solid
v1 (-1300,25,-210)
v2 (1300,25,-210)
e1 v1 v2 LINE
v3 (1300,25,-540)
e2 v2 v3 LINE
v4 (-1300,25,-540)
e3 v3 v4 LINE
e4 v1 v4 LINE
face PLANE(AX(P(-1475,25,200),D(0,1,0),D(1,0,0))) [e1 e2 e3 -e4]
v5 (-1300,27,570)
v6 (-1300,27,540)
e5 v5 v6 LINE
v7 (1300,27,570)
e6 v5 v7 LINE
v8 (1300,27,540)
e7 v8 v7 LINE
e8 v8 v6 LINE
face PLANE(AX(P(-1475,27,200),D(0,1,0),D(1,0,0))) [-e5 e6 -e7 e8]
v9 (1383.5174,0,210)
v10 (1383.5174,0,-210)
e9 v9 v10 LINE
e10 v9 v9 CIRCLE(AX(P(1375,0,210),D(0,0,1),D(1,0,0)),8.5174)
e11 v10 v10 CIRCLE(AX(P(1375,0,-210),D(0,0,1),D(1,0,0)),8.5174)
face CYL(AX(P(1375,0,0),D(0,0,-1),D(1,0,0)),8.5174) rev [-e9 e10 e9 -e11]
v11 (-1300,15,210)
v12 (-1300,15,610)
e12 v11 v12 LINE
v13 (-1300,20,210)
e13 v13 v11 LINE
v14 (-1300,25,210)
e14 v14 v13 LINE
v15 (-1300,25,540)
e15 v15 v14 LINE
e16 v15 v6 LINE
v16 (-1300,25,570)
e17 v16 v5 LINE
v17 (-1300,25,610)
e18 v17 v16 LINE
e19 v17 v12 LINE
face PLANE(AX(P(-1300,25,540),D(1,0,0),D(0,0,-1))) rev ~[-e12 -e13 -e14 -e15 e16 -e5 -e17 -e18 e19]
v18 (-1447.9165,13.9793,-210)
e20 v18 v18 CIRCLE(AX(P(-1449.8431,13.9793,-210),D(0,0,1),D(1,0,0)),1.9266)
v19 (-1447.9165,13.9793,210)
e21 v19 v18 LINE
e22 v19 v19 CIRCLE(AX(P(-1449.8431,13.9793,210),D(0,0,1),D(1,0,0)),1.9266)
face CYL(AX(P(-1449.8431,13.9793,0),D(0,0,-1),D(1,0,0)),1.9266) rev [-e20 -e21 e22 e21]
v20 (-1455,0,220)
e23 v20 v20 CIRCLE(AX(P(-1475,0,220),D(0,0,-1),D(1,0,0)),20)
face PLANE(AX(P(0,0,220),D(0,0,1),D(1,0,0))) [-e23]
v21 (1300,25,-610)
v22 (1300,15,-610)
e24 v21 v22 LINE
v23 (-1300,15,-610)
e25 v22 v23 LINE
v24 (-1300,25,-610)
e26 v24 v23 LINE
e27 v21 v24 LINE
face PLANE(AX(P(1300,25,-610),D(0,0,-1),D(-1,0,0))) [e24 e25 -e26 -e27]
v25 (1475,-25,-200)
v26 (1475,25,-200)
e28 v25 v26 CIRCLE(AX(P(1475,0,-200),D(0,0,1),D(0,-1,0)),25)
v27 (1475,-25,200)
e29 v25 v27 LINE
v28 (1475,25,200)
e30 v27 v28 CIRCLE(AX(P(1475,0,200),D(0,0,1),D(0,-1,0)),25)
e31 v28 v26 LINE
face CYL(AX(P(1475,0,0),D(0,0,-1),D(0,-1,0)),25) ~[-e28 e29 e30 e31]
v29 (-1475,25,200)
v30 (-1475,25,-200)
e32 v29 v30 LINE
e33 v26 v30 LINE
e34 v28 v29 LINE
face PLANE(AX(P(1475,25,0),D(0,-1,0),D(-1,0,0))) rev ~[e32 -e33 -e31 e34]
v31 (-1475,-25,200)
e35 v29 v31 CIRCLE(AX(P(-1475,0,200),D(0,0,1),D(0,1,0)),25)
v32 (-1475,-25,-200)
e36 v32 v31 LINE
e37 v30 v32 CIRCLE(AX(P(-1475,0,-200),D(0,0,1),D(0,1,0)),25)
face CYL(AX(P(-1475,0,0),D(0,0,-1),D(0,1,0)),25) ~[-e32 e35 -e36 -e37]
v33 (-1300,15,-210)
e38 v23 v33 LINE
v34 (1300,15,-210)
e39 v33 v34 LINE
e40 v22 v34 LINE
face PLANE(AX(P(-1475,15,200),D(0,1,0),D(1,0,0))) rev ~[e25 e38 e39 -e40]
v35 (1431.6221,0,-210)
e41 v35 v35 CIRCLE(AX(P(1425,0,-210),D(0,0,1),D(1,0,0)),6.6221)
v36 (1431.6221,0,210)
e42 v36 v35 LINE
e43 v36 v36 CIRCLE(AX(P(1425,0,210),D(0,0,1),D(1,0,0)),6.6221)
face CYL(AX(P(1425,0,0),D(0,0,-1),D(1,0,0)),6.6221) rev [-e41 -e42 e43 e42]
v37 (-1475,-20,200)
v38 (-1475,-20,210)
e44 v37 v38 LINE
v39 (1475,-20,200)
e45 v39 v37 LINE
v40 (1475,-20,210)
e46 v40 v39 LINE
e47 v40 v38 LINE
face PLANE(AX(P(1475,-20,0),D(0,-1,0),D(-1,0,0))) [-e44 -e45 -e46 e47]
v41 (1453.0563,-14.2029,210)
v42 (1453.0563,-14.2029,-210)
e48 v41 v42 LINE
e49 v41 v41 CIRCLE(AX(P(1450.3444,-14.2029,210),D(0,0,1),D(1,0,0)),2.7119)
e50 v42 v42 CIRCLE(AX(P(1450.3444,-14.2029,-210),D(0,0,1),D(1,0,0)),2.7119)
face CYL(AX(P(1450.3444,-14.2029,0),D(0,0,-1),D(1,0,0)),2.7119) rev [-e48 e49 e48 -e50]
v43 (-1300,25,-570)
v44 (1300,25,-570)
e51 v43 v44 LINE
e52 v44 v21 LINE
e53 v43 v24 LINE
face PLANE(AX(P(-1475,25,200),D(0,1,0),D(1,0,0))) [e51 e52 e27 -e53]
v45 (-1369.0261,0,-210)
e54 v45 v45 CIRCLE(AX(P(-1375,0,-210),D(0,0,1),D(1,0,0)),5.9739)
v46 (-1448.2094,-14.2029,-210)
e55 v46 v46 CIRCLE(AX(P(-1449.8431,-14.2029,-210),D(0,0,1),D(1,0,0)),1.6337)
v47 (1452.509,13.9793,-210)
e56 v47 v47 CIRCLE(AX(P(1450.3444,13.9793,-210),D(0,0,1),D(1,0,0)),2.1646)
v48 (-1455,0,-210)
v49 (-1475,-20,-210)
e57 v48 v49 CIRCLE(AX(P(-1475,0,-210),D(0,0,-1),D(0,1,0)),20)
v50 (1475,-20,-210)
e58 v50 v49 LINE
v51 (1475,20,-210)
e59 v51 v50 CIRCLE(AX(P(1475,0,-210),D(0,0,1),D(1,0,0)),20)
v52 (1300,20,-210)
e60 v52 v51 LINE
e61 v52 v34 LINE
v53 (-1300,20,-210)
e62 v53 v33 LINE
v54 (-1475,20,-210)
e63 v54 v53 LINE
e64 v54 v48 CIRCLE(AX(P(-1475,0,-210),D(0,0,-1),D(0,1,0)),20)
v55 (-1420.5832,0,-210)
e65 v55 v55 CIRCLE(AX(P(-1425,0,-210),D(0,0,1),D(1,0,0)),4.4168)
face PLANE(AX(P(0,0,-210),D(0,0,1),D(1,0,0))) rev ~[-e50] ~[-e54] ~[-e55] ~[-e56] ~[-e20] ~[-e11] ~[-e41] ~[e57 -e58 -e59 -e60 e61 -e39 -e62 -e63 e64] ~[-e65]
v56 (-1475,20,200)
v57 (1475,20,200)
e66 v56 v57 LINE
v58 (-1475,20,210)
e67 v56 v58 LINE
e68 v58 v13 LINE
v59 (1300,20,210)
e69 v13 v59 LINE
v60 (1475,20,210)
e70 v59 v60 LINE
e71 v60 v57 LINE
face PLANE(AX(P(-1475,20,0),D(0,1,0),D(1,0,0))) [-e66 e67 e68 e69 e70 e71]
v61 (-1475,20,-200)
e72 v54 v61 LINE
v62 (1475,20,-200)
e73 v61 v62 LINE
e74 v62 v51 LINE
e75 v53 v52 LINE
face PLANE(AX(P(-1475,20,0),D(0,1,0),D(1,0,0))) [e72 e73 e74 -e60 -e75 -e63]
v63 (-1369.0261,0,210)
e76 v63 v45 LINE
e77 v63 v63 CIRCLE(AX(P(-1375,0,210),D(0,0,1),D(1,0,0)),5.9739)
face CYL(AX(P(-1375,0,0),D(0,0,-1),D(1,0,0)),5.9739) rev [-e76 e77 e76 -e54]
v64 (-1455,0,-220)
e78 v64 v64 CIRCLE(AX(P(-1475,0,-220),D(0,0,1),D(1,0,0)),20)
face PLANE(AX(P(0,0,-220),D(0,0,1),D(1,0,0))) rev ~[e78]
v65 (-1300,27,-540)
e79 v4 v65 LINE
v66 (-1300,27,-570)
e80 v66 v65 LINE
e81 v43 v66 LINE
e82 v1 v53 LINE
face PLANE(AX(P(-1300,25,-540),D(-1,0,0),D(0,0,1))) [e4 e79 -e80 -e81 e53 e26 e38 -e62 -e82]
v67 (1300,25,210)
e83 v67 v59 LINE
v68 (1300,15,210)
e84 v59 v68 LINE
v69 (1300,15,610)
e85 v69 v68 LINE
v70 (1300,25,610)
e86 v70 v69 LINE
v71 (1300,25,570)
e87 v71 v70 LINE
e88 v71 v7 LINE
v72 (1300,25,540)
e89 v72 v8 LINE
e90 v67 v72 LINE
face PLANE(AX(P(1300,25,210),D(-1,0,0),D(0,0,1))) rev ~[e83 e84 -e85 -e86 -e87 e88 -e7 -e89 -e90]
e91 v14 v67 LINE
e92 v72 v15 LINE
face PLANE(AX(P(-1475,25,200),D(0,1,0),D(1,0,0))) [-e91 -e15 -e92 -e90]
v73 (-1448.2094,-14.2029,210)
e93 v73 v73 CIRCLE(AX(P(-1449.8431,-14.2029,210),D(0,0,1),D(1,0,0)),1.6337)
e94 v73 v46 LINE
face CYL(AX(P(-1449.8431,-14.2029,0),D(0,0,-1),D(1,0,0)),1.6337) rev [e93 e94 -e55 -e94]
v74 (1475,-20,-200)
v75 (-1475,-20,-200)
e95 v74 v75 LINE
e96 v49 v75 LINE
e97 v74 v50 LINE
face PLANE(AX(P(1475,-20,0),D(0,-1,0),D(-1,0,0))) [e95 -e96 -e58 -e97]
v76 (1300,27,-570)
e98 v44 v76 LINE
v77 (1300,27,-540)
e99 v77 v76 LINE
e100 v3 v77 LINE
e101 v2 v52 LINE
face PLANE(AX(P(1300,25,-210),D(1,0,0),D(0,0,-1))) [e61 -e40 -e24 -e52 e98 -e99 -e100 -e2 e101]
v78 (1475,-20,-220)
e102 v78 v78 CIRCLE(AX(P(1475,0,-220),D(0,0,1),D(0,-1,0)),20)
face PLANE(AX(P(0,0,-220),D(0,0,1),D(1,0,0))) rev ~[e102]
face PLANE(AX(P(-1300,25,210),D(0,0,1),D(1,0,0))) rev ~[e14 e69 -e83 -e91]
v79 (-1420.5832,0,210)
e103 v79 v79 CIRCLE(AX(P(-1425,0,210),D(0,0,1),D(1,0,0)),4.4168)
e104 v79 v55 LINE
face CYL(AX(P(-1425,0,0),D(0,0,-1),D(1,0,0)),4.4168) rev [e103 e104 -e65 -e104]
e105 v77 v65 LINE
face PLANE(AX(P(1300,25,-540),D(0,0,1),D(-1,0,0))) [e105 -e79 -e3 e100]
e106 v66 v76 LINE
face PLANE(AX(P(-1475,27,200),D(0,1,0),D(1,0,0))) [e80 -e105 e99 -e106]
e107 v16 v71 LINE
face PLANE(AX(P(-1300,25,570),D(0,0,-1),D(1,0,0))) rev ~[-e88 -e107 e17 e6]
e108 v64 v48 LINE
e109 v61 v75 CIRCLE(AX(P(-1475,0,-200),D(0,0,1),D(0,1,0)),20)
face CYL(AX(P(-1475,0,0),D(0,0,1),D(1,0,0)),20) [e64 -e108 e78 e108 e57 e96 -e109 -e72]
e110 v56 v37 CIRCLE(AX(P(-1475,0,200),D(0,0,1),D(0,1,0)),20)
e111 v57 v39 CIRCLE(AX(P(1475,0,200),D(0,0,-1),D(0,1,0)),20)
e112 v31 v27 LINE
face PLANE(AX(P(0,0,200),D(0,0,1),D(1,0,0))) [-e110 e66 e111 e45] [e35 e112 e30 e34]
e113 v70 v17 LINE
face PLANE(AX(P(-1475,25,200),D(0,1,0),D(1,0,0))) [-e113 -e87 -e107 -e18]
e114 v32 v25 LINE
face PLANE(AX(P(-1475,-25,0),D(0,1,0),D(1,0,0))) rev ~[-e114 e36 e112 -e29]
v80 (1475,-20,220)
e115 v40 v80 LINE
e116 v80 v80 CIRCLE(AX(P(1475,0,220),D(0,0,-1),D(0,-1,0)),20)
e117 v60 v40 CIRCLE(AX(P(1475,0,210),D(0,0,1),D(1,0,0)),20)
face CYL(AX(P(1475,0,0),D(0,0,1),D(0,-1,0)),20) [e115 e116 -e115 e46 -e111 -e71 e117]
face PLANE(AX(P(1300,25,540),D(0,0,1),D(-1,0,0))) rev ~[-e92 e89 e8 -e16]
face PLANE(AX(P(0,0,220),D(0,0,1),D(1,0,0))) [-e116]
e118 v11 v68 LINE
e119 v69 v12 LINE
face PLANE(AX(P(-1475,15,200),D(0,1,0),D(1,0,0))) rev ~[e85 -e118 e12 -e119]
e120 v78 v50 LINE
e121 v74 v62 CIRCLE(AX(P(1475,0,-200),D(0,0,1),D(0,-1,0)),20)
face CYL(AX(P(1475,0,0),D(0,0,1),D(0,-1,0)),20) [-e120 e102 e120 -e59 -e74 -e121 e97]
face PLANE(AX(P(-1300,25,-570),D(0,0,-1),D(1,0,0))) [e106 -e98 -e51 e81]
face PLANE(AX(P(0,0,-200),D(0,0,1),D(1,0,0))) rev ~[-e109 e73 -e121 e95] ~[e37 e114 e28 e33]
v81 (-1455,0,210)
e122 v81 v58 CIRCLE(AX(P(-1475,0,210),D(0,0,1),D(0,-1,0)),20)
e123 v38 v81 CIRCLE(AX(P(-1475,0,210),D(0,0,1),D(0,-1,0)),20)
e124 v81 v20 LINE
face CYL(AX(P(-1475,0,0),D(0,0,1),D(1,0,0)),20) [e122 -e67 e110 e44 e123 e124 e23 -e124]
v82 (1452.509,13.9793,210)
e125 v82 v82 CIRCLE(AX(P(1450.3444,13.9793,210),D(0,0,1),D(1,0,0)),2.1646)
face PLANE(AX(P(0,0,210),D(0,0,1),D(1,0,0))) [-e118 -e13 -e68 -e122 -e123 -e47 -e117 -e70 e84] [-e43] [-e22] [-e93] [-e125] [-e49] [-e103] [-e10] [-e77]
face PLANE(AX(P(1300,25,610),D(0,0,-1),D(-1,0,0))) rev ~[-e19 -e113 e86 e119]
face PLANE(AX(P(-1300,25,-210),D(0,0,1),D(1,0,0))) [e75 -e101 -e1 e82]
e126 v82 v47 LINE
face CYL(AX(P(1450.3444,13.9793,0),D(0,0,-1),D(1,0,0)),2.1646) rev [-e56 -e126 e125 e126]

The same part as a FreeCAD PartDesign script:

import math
import FreeCAD as App
import Part
import Sketcher
Q = App.Units.Quantity

doc = App.newDocument("Part")
body = doc.addObject("PartDesign::Body", "Body")

sketch1 = body.newObject("Sketcher::SketchObject", "Sketch")
sketch1.AttachmentSupport = (doc.getObject("XY_Plane"), [""])
sketch1.MapMode = "FlatFace"
sketch1.addGeometry([
    Part.ArcOfCircle(Part.Circle(App.Vector(-1475, 0, 0), App.Vector(0, 0, 1), 25), math.radians(90), math.radians(270)),
    Part.LineSegment(App.Vector(-1475, -25, 0), App.Vector(1475, -25, 0)),
    Part.ArcOfCircle(Part.Circle(App.Vector(1475, 0, 0), App.Vector(0, 0, 1), 25), math.radians(-90), math.radians(90)),
    Part.LineSegment(App.Vector(1475, 25, 0), App.Vector(-1475, 25, 0)),
    Part.ArcOfCircle(Part.Circle(App.Vector(-1475, 0, 0), App.Vector(0, 0, 1), 20), math.radians(90), math.radians(270)),
    Part.LineSegment(App.Vector(-1475, 20, 0), App.Vector(1475, 20, 0)),
    Part.ArcOfCircle(Part.Circle(App.Vector(1475, 0, 0), App.Vector(0, 0, 1), 20), math.radians(-90), math.radians(90)),
    Part.LineSegment(App.Vector(1475, -20, 0), App.Vector(-1475, -20, 0)),
], False)
sketch1.addConstraint([
    Sketcher.Constraint("Tangent", 0, 2, 1, 1),
    Sketcher.Constraint("Tangent", 1, 2, 2, 1),
    Sketcher.Constraint("Tangent", 2, 2, 3, 1),
    Sketcher.Constraint("Tangent", 3, 2, 0, 1),
    Sketcher.Constraint("Tangent", 4, 1, 5, 1),
    Sketcher.Constraint("Tangent", 5, 2, 6, 2),
    Sketcher.Constraint("Tangent", 6, 1, 7, 1),
    Sketcher.Constraint("Tangent", 7, 2, 4, 2),
    Sketcher.Constraint("Horizontal", 1),
    Sketcher.Constraint("Horizontal", 3),
    Sketcher.Constraint("Horizontal", 5),
    Sketcher.Constraint("Horizontal", 7),
    Sketcher.Constraint("Coincident", 4, 3, 0, 3),
    Sketcher.Constraint("Symmetric", 0, 3, 2, 3, -1, 1),
    Sketcher.Constraint("Vertical", 6, 3, 1, 2),
    Sketcher.Constraint("Radius", 0, Q("25 mm")),
    Sketcher.Constraint("Radius", 4, Q("20 mm")),
    Sketcher.Constraint("DistanceX", 1, 1, 1, 2, Q("2950 mm")),
])
pad1 = body.newObject("PartDesign::Pad", "Pad")
pad1.Profile = sketch1
pad1.Length = 400
pad1.Midplane = True

sketch2 = body.newObject("Sketcher::SketchObject", "Sketch001")
sketch2.AttachmentSupport = (doc.getObject("XY_Plane"), [""])
sketch2.MapMode = "FlatFace"
sketch2.addGeometry([
    Part.LineSegment(App.Vector(1475, 20, 0), App.Vector(-1475, 20, 0)),
    Part.ArcOfCircle(Part.Circle(App.Vector(-1475, 0, 0), App.Vector(0, 0, 1), 20), math.radians(-90), math.radians(90)),
    Part.LineSegment(App.Vector(-1475, -20, 0), App.Vector(1475, -20, 0)),
    Part.ArcOfCircle(Part.Circle(App.Vector(1475, 0, 0), App.Vector(0, 0, 1), 20), math.radians(90), math.radians(270)),
    Part.Circle(App.Vector(-1449.8, -14.2, 0), App.Vector(0, 0, 1), 1.6),
    Part.Circle(App.Vector(1450.3, -14.2, 0), App.Vector(0, 0, 1), 2.7),
    Part.Circle(App.Vector(-1425, 0, 0), App.Vector(0, 0, 1), 4.4),
    Part.Circle(App.Vector(-1375, 0, 0), App.Vector(0, 0, 1), 6),
    Part.Circle(App.Vector(-1449.8, 14, 0), App.Vector(0, 0, 1), 1.9),
    Part.Circle(App.Vector(1375, 0, 0), App.Vector(0, 0, 1), 8.5),
    Part.Circle(App.Vector(1425, 0, 0), App.Vector(0, 0, 1), 6.6),
    Part.Circle(App.Vector(1450.3, 14, 0), App.Vector(0, 0, 1), 2.2),
], False)
sketch2.addConstraint([
    Sketcher.Constraint("Tangent", 0, 2, 1, 2),
    Sketcher.Constraint("Tangent", 1, 1, 2, 1),
    Sketcher.Constraint("Tangent", 2, 2, 3, 2),
    Sketcher.Constraint("Tangent", 3, 1, 0, 1),
    Sketcher.Constraint("Horizontal", 0),
    Sketcher.Constraint("Horizontal", 2),
    Sketcher.Constraint("Symmetric", 1, 3, 3, 3, -1, 1),
    Sketcher.Constraint("Symmetric", 7, 3, 9, 3, -1, 1),
    Sketcher.Constraint("Symmetric", 6, 3, 10, 3, -1, 1),
    Sketcher.Constraint("PointOnObject", 6, 3, -1),
    Sketcher.Constraint("PointOnObject", 7, 3, -1),
    Sketcher.Constraint("Horizontal", 4, 3, 5, 3),
    Sketcher.Constraint("Horizontal", 8, 3, 11, 3),
    Sketcher.Constraint("Vertical", 4, 3, 8, 3),
    Sketcher.Constraint("Vertical", 5, 3, 11, 3),
    Sketcher.Constraint("Radius", 1, Q("20 mm")),
    Sketcher.Constraint("DistanceX", 1, 3, 6, 3, Q("50 mm")),
    Sketcher.Constraint("DistanceX", 6, 3, 7, 3, Q("50 mm")),
    Sketcher.Constraint("DistanceX", 0, 2, 0, 1, Q("2950 mm")),
    Sketcher.Constraint("Diameter", 4, Q("3.2674 mm")),
    Sketcher.Constraint("Diameter", 5, Q("5.4238 mm")),
    Sketcher.Constraint("Diameter", 6, Q("8.8336 mm")),
    Sketcher.Constraint("Diameter", 7, Q("11.9478 mm")),
    Sketcher.Constraint("Diameter", 8, Q("3.8532 mm")),
    Sketcher.Constraint("Diameter", 9, Q("17.0348 mm")),
    Sketcher.Constraint("Diameter", 10, Q("13.2442 mm")),
    Sketcher.Constraint("Diameter", 11, Q("4.3292 mm")),
    Sketcher.Constraint("DistanceX", 4, 3, -1, 1, Q("1449.843 mm")),
    Sketcher.Constraint("DistanceY", 4, 3, -1, 1, Q("14.203 mm")),
    Sketcher.Constraint("DistanceX", -1, 1, 5, 3, Q("1450.3444 mm")),
    Sketcher.Constraint("DistanceY", -1, 1, 8, 3, Q("13.9793 mm")),
])
pad2 = body.newObject("PartDesign::Pad", "Pad001")
pad2.Profile = sketch2
pad2.Length = 420
pad2.Midplane = True

sketch3 = body.newObject("Sketcher::SketchObject", "Sketch002")
sketch3.AttachmentSupport = (doc.getObject("XY_Plane"), [""])
sketch3.MapMode = "FlatFace"
sketch3.addGeometry([
    Part.Circle(App.Vector(-1475, 0, 0), App.Vector(0, 0, 1), 20),
    Part.Circle(App.Vector(1475, 0, 0), App.Vector(0, 0, 1), 20),
], False)
sketch3.addConstraint([
    Sketcher.Constraint("Equal", 0, 1),
    Sketcher.Constraint("Symmetric", 0, 3, 1, 3, -1, 1),
    Sketcher.Constraint("PointOnObject", 0, 3, -1),
    Sketcher.Constraint("Diameter", 0, Q("40 mm")),
    Sketcher.Constraint("DistanceX", 0, 3, -1, 1, Q("1475 mm")),
])
pad3 = body.newObject("PartDesign::Pad", "Pad002")
pad3.Profile = sketch3
pad3.Length = 440
pad3.Midplane = True

sketch4 = body.newObject("Sketcher::SketchObject", "Sketch003")
sketch4.AttachmentSupport = (doc.getObject("XZ_Plane"), [""])
sketch4.MapMode = "FlatFace"
sketch4.AttachmentOffset = App.Placement(App.Vector(0, 0, -25), App.Rotation())
sketch4.addGeometry([
    Part.LineSegment(App.Vector(-1300, -210, 0), App.Vector(1300, -210, 0)),
    Part.LineSegment(App.Vector(1300, -210, 0), App.Vector(1300, -610, 0)),
    Part.LineSegment(App.Vector(1300, -610, 0), App.Vector(-1300, -610, 0)),
    Part.LineSegment(App.Vector(-1300, -610, 0), App.Vector(-1300, -210, 0)),
    Part.LineSegment(App.Vector(1300, 210, 0), App.Vector(-1300, 210, 0)),
    Part.LineSegment(App.Vector(-1300, 210, 0), App.Vector(-1300, 610, 0)),
    Part.LineSegment(App.Vector(-1300, 610, 0), App.Vector(1300, 610, 0)),
    Part.LineSegment(App.Vector(1300, 610, 0), App.Vector(1300, 210, 0)),
], False)
sketch4.addConstraint([
    Sketcher.Constraint("Coincident", 0, 2, 1, 1),
    Sketcher.Constraint("Coincident", 1, 2, 2, 1),
    Sketcher.Constraint("Coincident", 2, 2, 3, 1),
    Sketcher.Constraint("Coincident", 3, 2, 0, 1),
    Sketcher.Constraint("Coincident", 4, 2, 5, 1),
    Sketcher.Constraint("Coincident", 5, 2, 6, 1),
    Sketcher.Constraint("Coincident", 6, 2, 7, 1),
    Sketcher.Constraint("Coincident", 7, 2, 4, 1),
    Sketcher.Constraint("Horizontal", 0),
    Sketcher.Constraint("Vertical", 1),
    Sketcher.Constraint("Horizontal", 2),
    Sketcher.Constraint("Vertical", 3),
    Sketcher.Constraint("Horizontal", 4),
    Sketcher.Constraint("Vertical", 5),
    Sketcher.Constraint("Horizontal", 6),
    Sketcher.Constraint("Vertical", 7),
    Sketcher.Constraint("Symmetric", 0, 2, 4, 2, -1, 1),
    Sketcher.Constraint("Symmetric", 2, 2, 6, 2, -1, 1),
    Sketcher.Constraint("Vertical", 3, 2, 4, 2),
    Sketcher.Constraint("DistanceX", 0, 1, 0, 2, Q("2600 mm")),
    Sketcher.Constraint("DistanceY", 1, 2, 1, 1, Q("400 mm")),
    Sketcher.Constraint("DistanceY", 0, 2, -1, 1, Q("210 mm")),
])
pad4 = body.newObject("PartDesign::Pad", "Pad003")
pad4.Profile = sketch4
pad4.Length = 10

sketch5 = body.newObject("Sketcher::SketchObject", "Sketch004")
sketch5.AttachmentSupport = (doc.getObject("XZ_Plane"), [""])
sketch5.MapMode = "FlatFace"
sketch5.AttachmentOffset = App.Placement(App.Vector(0, 0, -25), App.Rotation())
sketch5.addGeometry([
    Part.LineSegment(App.Vector(-1300, -570, 0), App.Vector(-1300, -540, 0)),
    Part.LineSegment(App.Vector(-1300, -540, 0), App.Vector(1300, -540, 0)),
    Part.LineSegment(App.Vector(1300, -540, 0), App.Vector(1300, -570, 0)),
    Part.LineSegment(App.Vector(1300, -570, 0), App.Vector(-1300, -570, 0)),
    Part.LineSegment(App.Vector(1300, 540, 0), App.Vector(-1300, 540, 0)),
    Part.LineSegment(App.Vector(-1300, 540, 0), App.Vector(-1300, 570, 0)),
    Part.LineSegment(App.Vector(-1300, 570, 0), App.Vector(1300, 570, 0)),
    Part.LineSegment(App.Vector(1300, 570, 0), App.Vector(1300, 540, 0)),
], False)
sketch5.addConstraint([
    Sketcher.Constraint("Coincident", 0, 2, 1, 1),
    Sketcher.Constraint("Coincident", 1, 2, 2, 1),
    Sketcher.Constraint("Coincident", 2, 2, 3, 1),
    Sketcher.Constraint("Coincident", 3, 2, 0, 1),
    Sketcher.Constraint("Coincident", 4, 2, 5, 1),
    Sketcher.Constraint("Coincident", 5, 2, 6, 1),
    Sketcher.Constraint("Coincident", 6, 2, 7, 1),
    Sketcher.Constraint("Coincident", 7, 2, 4, 1),
    Sketcher.Constraint("Vertical", 0),
    Sketcher.Constraint("Horizontal", 1),
    Sketcher.Constraint("Vertical", 2),
    Sketcher.Constraint("Horizontal", 3),
    Sketcher.Constraint("Horizontal", 4),
    Sketcher.Constraint("Vertical", 5),
    Sketcher.Constraint("Horizontal", 6),
    Sketcher.Constraint("Vertical", 7),
    Sketcher.Constraint("Symmetric", 1, 2, 4, 2, -1, 1),
    Sketcher.Constraint("Symmetric", 3, 2, 6, 2, -1, 1),
    Sketcher.Constraint("Vertical", 3, 2, 4, 2),
    Sketcher.Constraint("DistanceX", 1, 1, 1, 2, Q("2600 mm")),
    Sketcher.Constraint("DistanceY", 0, 1, 0, 2, Q("30 mm")),
    Sketcher.Constraint("DistanceY", 0, 2, -1, 1, Q("540 mm")),
])
pad5 = body.newObject("PartDesign::Pad", "Pad004")
pad5.Profile = sketch5
pad5.Length = 2
pad5.Reversed = True

doc.recompute()
